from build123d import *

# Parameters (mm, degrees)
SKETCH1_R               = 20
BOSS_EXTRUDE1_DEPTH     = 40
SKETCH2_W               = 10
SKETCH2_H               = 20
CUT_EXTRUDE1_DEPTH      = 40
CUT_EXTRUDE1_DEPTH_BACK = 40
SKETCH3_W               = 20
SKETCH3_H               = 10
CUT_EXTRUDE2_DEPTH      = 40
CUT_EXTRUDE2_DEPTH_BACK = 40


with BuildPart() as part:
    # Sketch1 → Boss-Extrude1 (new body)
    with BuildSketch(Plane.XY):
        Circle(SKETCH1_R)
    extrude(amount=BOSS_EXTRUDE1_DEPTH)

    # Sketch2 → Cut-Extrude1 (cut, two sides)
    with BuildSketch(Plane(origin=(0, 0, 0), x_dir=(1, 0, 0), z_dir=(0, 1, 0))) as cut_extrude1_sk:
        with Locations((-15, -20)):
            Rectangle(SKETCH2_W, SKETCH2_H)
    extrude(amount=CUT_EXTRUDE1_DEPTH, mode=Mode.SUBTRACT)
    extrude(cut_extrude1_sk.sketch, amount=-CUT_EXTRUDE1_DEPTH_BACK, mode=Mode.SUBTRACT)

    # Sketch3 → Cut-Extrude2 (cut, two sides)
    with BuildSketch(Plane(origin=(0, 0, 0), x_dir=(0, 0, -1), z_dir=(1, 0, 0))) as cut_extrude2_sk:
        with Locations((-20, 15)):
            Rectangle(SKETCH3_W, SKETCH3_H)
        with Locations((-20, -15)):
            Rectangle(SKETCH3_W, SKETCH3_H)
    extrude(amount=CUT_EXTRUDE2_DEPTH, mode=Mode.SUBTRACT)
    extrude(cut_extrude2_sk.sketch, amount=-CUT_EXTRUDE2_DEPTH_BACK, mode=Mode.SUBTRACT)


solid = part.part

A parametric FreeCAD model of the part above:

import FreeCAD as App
import Part
import Sketcher

V = App.Vector

doc = App.newDocument("Part")
body = doc.addObject("PartDesign::Body", "Body")

sketch1 = body.newObject("Sketcher::SketchObject", "Sketch")
sketch1.AttachmentSupport = (doc.getObject("XY_Plane"), [""])
sketch1.MapMode = "FlatFace"
sketch1.addGeometry(Part.Circle(V(0, 0, 0), V(0, 0, 1), 20), False)
sketch1.addConstraint([
    Sketcher.Constraint("Coincident", 0, 3, -1, 1),
    Sketcher.Constraint("Diameter", 0, 40.0),
])
pad1 = body.newObject("PartDesign::Pad", "Pad")
pad1.Profile = sketch1
pad1.Length = 40

sketch2 = body.newObject("Sketcher::SketchObject", "Sketch001")
sketch2.AttachmentSupport = (doc.getObject("XZ_Plane"), [""])
sketch2.MapMode = "FlatFace"
sketch2.addGeometry([
    Part.LineSegment(V(-20, 10, 0), V(-20, 30, 0)),
    Part.LineSegment(V(-20, 30, 0), V(-10, 30, 0)),
    Part.LineSegment(V(-10, 30, 0), V(-10, 10, 0)),
    Part.LineSegment(V(-10, 10, 0), V(-20, 10, 0)),
], False)
sketch2.addConstraint([
    Sketcher.Constraint("Coincident", 0, 2, 1, 1),
    Sketcher.Constraint("Coincident", 1, 2, 2, 1),
    Sketcher.Constraint("Coincident", 2, 2, 3, 1),
    Sketcher.Constraint("Coincident", 3, 2, 0, 1),
    Sketcher.Constraint("Vertical", 0),
    Sketcher.Constraint("Horizontal", 1),
    Sketcher.Constraint("Vertical", 2),
    Sketcher.Constraint("Horizontal", 3),
    Sketcher.Constraint("DistanceX", 1, 1, 1, 2, 10.0),
    Sketcher.Constraint("DistanceY", 0, 1, 0, 2, 20.0),
    Sketcher.Constraint("DistanceX", 0, 2, -1, 1, 20.0),
    Sketcher.Constraint("DistanceY", -1, 1, 0, 2, 30.0),
])
pocket1 = body.newObject("PartDesign::Pocket", "Pocket")
pocket1.Profile = sketch2
pocket1.Type = "ThroughAll"
pocket1.Midplane = True

sketch3 = body.newObject("Sketcher::SketchObject", "Sketch002")
sketch3.AttachmentSupport = (doc.getObject("YZ_Plane"), [""])
sketch3.MapMode = "FlatFace"
sketch3.addGeometry([
    Part.LineSegment(V(20, 30, 0), V(10, 30, 0)),
    Part.LineSegment(V(10, 30, 0), V(10, 10, 0)),
    Part.LineSegment(V(10, 10, 0), V(20, 10, 0)),
    Part.LineSegment(V(20, 10, 0), V(20, 30, 0)),
    Part.LineSegment(V(-10, 30, 0), V(-20, 30, 0)),
    Part.LineSegment(V(-20, 30, 0), V(-20, 10, 0)),
    Part.LineSegment(V(-20, 10, 0), V(-10, 10, 0)),
    Part.LineSegment(V(-10, 10, 0), V(-10, 30, 0)),
], False)
sketch3.addConstraint([
    Sketcher.Constraint("Coincident", 0, 2, 1, 1),
    Sketcher.Constraint("Coincident", 1, 2, 2, 1),
    Sketcher.Constraint("Coincident", 2, 2, 3, 1),
    Sketcher.Constraint("Coincident", 3, 2, 0, 1),
    Sketcher.Constraint("Coincident", 4, 2, 5, 1),
    Sketcher.Constraint("Coincident", 5, 2, 6, 1),
    Sketcher.Constraint("Coincident", 6, 2, 7, 1),
    Sketcher.Constraint("Coincident", 7, 2, 4, 1),
    Sketcher.Constraint("Horizontal", 0),
    Sketcher.Constraint("Vertical", 1),
    Sketcher.Constraint("Horizontal", 2),
    Sketcher.Constraint("Vertical", 3),
    Sketcher.Constraint("Horizontal", 4),
    Sketcher.Constraint("Vertical", 5),
    Sketcher.Constraint("Horizontal", 6),
    Sketcher.Constraint("Vertical", 7),
    Sketcher.Constraint("Symmetric", 3, 2, 4, 2, -2),
    Sketcher.Constraint("Symmetric", 1, 2, 6, 2, -2),
    Sketcher.Constraint("DistanceX", 0, 2, 0, 1, 10.0),
    Sketcher.Constraint("DistanceY", 1, 2, 1, 1, 20.0),
    Sketcher.Constraint("DistanceX", -1, 1, 0, 2, 10.0),
    Sketcher.Constraint("DistanceY", -1, 1, 0, 2, 30.0),
])
pocket2 = body.newObject("PartDesign::Pocket", "Pocket001")
pocket2.Profile = sketch3
pocket2.Type = "ThroughAll"
pocket2.Midplane = True

doc.recompute()
